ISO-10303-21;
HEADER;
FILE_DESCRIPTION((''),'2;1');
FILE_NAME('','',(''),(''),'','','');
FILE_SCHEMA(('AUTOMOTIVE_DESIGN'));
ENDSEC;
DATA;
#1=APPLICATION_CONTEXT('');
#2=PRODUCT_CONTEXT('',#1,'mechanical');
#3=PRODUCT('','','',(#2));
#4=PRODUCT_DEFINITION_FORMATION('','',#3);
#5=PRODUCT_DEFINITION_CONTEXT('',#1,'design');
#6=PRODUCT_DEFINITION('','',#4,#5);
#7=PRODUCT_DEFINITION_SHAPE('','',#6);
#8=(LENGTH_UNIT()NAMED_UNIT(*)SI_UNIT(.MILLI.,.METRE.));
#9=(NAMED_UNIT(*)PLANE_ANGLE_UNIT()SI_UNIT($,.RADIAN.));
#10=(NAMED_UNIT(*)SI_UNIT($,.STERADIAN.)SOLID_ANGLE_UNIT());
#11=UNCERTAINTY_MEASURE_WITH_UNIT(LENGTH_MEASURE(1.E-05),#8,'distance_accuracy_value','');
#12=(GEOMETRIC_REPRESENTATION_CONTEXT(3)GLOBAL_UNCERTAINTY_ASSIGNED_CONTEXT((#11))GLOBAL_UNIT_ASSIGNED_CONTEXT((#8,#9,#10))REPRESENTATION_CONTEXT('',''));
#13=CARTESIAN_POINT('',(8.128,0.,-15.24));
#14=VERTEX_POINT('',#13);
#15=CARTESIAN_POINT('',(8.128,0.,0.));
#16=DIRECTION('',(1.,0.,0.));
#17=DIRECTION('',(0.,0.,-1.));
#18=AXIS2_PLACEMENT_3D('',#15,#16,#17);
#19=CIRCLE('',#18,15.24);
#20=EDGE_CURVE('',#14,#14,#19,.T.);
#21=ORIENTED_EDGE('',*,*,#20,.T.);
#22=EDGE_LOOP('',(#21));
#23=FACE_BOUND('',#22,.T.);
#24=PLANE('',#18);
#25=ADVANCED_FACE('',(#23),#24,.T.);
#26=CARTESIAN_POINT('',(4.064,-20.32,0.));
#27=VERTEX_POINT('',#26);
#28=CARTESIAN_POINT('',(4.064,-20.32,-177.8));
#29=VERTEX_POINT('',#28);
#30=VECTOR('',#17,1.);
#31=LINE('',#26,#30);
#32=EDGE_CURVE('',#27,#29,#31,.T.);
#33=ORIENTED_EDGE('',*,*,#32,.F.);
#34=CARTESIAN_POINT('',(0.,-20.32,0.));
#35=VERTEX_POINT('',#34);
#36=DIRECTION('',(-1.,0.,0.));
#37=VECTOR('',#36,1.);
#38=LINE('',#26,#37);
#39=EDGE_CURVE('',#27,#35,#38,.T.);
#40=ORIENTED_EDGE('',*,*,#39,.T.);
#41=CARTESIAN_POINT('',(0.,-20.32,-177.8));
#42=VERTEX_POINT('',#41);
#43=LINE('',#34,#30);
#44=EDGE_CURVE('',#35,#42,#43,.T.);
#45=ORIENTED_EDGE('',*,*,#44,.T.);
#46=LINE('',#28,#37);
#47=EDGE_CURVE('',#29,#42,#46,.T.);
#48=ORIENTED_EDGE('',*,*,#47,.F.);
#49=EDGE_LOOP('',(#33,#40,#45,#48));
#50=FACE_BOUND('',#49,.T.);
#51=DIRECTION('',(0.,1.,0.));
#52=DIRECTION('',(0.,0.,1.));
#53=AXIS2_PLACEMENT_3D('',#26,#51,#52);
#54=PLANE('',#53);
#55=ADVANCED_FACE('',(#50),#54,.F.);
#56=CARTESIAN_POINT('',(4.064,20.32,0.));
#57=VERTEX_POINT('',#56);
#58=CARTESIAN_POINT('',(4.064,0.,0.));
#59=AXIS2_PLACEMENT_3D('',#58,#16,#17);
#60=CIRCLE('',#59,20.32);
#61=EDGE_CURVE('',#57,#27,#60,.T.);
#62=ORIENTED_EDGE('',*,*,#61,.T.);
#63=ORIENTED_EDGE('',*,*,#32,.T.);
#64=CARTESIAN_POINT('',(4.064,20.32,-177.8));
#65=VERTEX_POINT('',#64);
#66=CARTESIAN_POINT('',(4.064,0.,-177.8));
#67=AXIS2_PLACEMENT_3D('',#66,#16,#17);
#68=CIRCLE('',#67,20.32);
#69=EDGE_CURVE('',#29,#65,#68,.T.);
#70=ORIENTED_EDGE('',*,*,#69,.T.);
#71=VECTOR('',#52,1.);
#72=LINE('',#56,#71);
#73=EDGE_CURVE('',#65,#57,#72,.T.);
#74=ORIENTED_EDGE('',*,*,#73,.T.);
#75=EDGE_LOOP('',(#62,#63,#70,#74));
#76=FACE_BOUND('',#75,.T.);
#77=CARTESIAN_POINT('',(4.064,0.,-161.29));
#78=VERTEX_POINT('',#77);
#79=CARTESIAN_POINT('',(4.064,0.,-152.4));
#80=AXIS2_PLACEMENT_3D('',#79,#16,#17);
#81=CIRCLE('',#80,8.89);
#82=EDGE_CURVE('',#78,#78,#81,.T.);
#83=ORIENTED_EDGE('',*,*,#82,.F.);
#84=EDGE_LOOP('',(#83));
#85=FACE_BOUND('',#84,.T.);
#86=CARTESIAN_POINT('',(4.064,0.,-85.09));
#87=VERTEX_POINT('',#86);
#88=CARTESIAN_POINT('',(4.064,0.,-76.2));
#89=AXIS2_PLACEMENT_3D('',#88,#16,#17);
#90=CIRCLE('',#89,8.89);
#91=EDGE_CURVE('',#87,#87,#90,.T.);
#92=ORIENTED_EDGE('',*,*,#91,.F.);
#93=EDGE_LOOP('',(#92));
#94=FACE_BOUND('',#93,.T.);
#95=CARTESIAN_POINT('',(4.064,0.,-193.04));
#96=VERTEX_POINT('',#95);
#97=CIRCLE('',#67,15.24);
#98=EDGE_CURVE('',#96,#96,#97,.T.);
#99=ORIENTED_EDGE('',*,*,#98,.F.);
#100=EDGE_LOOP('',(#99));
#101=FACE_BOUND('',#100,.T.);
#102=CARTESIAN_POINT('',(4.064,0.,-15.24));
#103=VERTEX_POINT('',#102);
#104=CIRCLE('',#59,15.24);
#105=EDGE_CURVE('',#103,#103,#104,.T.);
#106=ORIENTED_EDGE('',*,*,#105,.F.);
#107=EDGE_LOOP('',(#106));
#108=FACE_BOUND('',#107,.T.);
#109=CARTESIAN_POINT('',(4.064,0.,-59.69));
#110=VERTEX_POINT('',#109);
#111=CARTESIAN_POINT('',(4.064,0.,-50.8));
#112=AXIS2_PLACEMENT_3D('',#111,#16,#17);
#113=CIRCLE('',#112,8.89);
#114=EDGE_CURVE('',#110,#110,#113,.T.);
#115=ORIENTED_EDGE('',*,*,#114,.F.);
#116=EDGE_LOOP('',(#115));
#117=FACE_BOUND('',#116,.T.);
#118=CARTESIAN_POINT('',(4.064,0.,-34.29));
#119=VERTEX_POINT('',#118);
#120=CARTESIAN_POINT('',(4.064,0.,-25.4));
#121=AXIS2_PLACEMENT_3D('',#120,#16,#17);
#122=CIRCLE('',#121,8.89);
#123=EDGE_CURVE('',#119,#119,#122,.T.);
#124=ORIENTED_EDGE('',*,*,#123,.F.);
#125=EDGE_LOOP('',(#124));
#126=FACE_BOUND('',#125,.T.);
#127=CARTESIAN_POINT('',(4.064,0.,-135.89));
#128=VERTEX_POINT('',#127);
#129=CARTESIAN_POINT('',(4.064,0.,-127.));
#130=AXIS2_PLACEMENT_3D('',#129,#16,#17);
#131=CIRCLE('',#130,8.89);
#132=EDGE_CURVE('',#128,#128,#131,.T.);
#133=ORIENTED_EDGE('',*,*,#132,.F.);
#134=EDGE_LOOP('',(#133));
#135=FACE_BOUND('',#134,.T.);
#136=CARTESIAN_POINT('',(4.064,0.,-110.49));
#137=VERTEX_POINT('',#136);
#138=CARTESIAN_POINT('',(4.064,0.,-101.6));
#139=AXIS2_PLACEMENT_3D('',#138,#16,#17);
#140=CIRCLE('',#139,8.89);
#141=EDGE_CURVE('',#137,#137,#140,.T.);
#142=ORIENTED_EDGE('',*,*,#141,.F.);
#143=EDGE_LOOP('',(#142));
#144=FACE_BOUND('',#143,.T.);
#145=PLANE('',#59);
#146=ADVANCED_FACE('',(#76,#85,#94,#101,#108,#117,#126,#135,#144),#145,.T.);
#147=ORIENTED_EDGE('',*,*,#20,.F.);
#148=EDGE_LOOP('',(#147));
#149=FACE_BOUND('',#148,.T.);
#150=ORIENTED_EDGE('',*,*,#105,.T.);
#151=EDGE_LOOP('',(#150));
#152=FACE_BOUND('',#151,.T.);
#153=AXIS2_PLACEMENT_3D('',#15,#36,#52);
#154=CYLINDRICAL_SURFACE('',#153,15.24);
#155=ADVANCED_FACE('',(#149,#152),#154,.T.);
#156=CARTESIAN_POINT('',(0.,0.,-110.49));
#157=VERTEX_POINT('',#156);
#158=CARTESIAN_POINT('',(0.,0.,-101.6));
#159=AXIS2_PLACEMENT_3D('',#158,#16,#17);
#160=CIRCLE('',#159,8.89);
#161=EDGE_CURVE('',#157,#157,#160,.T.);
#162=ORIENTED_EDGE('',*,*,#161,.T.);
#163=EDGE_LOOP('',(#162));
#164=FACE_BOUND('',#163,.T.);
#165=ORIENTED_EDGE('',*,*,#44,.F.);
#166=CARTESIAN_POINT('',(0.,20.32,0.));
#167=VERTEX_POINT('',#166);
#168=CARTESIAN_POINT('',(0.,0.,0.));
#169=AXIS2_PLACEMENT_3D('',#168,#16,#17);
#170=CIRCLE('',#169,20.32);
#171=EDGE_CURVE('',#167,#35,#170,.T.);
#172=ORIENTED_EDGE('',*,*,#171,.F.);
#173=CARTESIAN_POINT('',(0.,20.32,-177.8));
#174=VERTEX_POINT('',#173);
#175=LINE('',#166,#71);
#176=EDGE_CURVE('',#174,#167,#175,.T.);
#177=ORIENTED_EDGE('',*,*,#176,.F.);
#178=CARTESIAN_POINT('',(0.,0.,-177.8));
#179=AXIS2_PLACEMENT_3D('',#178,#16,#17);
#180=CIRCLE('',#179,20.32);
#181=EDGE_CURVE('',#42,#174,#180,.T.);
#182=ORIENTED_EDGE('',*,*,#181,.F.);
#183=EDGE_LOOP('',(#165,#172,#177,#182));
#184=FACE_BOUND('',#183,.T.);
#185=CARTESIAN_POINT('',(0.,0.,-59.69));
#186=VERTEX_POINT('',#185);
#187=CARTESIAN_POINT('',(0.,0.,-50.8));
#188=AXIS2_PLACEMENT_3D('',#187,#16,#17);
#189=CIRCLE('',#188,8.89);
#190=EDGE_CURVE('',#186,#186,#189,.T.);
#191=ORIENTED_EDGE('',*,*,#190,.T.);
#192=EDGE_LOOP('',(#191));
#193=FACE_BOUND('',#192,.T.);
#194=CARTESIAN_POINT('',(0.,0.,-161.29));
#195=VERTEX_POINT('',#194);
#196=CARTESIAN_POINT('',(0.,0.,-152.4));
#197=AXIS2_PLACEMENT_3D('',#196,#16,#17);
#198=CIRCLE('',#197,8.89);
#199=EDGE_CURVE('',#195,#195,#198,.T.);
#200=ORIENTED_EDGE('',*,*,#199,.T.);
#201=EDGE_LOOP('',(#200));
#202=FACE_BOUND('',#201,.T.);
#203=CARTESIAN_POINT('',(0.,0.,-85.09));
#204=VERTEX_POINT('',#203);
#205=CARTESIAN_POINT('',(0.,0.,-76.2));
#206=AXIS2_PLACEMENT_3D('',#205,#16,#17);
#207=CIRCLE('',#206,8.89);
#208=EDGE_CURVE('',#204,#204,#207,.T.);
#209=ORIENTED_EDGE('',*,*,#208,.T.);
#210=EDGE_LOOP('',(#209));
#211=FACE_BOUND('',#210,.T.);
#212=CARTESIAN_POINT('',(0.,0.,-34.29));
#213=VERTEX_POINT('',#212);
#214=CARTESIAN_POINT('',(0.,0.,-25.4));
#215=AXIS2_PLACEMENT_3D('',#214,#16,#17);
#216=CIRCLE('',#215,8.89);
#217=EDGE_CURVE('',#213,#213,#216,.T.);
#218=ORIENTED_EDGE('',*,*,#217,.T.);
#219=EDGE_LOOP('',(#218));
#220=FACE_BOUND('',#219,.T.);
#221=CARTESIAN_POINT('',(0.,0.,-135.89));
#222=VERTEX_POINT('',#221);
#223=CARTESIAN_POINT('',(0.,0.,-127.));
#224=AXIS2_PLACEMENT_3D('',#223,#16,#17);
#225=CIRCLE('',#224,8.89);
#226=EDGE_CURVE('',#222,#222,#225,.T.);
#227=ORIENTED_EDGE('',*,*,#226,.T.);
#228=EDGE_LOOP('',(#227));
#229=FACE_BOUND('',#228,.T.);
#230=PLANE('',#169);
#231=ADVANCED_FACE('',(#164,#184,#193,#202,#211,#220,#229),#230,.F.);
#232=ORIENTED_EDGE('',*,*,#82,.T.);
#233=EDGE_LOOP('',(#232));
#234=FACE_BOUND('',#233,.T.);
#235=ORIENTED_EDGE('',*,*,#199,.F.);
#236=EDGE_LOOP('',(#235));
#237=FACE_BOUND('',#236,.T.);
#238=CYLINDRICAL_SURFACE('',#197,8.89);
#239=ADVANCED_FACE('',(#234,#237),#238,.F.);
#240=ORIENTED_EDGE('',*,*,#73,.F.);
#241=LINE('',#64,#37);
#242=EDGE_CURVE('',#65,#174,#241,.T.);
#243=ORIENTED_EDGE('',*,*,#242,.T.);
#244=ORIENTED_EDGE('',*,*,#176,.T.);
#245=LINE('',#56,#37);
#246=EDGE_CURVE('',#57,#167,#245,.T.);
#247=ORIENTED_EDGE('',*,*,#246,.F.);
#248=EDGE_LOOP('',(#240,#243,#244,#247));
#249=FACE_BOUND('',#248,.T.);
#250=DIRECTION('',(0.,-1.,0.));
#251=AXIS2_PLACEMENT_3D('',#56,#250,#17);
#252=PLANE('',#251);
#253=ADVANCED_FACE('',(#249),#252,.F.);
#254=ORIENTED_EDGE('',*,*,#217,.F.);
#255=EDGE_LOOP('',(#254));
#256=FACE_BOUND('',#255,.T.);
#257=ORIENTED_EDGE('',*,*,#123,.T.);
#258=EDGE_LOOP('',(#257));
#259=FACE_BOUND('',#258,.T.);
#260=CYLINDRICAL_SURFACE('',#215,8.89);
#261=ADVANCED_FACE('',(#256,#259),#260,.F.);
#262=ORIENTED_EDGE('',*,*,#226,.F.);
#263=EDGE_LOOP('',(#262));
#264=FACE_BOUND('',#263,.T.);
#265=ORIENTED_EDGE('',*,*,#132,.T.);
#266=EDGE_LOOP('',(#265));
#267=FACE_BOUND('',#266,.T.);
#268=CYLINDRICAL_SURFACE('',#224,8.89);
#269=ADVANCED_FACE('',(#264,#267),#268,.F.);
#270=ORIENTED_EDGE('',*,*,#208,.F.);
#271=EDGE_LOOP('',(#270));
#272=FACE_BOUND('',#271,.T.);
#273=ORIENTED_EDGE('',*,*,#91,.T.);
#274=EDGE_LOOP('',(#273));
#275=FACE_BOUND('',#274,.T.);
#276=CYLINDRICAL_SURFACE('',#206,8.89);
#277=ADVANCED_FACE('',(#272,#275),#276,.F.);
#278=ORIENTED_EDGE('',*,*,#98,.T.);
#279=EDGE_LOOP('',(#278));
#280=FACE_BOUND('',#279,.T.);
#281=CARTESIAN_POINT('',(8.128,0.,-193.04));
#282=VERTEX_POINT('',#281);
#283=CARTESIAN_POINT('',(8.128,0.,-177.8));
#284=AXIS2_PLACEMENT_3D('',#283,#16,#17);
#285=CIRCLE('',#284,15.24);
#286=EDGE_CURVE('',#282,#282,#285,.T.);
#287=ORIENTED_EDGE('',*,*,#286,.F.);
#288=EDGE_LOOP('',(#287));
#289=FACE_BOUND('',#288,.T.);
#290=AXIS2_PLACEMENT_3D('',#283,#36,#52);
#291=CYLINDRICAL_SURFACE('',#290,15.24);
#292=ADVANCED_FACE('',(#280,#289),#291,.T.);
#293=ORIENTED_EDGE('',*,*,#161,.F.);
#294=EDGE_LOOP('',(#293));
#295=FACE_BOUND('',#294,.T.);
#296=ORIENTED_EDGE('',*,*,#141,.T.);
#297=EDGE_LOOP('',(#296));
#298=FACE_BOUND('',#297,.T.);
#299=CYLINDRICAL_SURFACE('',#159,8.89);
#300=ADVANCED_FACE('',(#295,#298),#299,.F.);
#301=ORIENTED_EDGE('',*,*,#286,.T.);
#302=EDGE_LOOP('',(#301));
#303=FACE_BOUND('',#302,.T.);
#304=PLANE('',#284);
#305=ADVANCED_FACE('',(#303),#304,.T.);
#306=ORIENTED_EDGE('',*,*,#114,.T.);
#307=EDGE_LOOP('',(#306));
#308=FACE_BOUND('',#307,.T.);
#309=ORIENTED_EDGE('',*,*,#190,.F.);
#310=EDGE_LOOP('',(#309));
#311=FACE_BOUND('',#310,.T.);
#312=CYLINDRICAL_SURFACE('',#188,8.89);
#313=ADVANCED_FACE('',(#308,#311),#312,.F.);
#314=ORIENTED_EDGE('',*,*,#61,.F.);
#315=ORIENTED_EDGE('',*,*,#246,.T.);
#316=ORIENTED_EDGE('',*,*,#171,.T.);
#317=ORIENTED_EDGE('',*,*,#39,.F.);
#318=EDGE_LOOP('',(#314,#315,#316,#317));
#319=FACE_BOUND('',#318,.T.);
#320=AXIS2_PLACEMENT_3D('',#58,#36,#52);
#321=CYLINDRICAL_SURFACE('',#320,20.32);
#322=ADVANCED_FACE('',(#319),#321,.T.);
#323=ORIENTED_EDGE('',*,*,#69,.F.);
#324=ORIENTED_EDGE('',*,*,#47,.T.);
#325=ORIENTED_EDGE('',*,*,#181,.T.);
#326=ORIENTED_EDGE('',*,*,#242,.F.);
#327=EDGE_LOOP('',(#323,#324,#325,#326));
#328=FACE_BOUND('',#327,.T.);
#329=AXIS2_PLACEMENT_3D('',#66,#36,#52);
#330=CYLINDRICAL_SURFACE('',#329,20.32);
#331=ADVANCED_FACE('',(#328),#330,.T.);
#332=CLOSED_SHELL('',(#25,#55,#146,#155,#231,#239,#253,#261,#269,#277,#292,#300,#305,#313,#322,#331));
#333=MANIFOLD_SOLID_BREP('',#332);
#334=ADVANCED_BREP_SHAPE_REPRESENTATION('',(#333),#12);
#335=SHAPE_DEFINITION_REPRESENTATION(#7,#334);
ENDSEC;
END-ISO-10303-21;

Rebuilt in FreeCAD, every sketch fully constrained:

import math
import FreeCAD as App
import Part
import Sketcher

V = App.Vector
Q = App.Units.Quantity

doc = App.newDocument("Part")
body = doc.addObject("PartDesign::Body", "Body")

# Sketch on YZ plane
sketch1 = body.newObject("Sketcher::SketchObject", "Sketch")
sketch1.AttachmentSupport = (doc.getObject("YZ_Plane"), [""])
sketch1.MapMode = "FlatFace"
sketch1.addGeometry([
    Part.LineSegment(V(20, -178, 0), V(20, 0, 0)),
    Part.ArcOfCircle(Part.Circle(V(0, 0, 0), V(0, 0, 1), 20), math.radians(0), math.radians(180)),
    Part.LineSegment(V(-20, 0, 0), V(-20, -178, 0)),
    Part.ArcOfCircle(Part.Circle(V(0, -178, 0), V(0, 0, 1), 20), math.radians(180), math.radians(360)),
], False)
sketch1.addConstraint([
    Sketcher.Constraint("Tangent", 0, 2, 1, 1),
    Sketcher.Constraint("Tangent", 1, 2, 2, 1),
    Sketcher.Constraint("Tangent", 2, 2, 3, 1),
    Sketcher.Constraint("Tangent", 3, 2, 0, 1),
    Sketcher.Constraint("Vertical", 0),
    Sketcher.Constraint("Vertical", 2),
    Sketcher.Constraint("Coincident", 1, 3, -1, 1),
    Sketcher.Constraint("Radius", 1, Q("0.8 in")),
    Sketcher.Constraint("DistanceY", 0, 1, 0, 2, Q("7 in")),
])
pad1 = body.newObject("PartDesign::Pad", "Pad")
pad1.Profile = sketch1
pad1.Length = Q("0.16 in")

# Sketch on YZ plane
sketch2 = body.newObject("Sketcher::SketchObject", "Sketch001")
sketch2.AttachmentSupport = (doc.getObject("YZ_Plane"), [""])
sketch2.MapMode = "FlatFace"
sketch2.AttachmentOffset = App.Placement(V(0, 0, 0.16 * 25.4), App.Rotation())
sketch2.addGeometry([
    Part.Circle(V(0, 0, 0), V(0, 0, 1), 15),
    Part.Circle(V(0, -178, 0), V(0, 0, 1), 15),
], False)
sketch2.addConstraint([
    Sketcher.Constraint("Coincident", 0, 3, -1, 1),
    Sketcher.Constraint("Equal", 0, 1),
    Sketcher.Constraint("PointOnObject", 1, 3, -2),
    Sketcher.Constraint("Diameter", 0, Q("1.2 in")),
    Sketcher.Constraint("DistanceY", 1, 3, -1, 1, Q("7 in")),
])
pad2 = body.newObject("PartDesign::Pad", "Pad001")
pad2.Profile = sketch2
pad2.Length = Q("0.16 in")

# Sketch on YZ plane
sketch3 = body.newObject("Sketcher::SketchObject", "Sketch002")
sketch3.AttachmentSupport = (doc.getObject("YZ_Plane"), [""])
sketch3.MapMode = "FlatFace"
sketch3.AttachmentOffset = App.Placement(V(0, 0, 0.16 * 25.4), App.Rotation())
sketch3.addGeometry(Part.Circle(V(0, -25, 0), V(0, 0, 1), 9), False)
sketch3.addConstraint([
    Sketcher.Constraint("PointOnObject", 0, 3, -2),
    Sketcher.Constraint("Diameter", 0, Q("0.7 in")),
    Sketcher.Constraint("DistanceY", 0, 3, -1, 1, Q("1 in")),
])
pocket1 = body.newObject("PartDesign::Pocket", "Pocket")
pocket1.Profile = sketch3
pocket1.Type = "ThroughAll"
doc.recompute()

linearpattern = body.newObject("PartDesign::LinearPattern", "LinearPattern")
linearpattern.Originals = [pocket1]
linearpattern.Direction = (doc.getObject("Z_Axis"), [""])
linearpattern.Mode = "offset"
linearpattern.Offset = Q("1 in")
linearpattern.Occurrences = 6
linearpattern.Reversed = True
body.Tip = linearpattern

doc.recompute()
